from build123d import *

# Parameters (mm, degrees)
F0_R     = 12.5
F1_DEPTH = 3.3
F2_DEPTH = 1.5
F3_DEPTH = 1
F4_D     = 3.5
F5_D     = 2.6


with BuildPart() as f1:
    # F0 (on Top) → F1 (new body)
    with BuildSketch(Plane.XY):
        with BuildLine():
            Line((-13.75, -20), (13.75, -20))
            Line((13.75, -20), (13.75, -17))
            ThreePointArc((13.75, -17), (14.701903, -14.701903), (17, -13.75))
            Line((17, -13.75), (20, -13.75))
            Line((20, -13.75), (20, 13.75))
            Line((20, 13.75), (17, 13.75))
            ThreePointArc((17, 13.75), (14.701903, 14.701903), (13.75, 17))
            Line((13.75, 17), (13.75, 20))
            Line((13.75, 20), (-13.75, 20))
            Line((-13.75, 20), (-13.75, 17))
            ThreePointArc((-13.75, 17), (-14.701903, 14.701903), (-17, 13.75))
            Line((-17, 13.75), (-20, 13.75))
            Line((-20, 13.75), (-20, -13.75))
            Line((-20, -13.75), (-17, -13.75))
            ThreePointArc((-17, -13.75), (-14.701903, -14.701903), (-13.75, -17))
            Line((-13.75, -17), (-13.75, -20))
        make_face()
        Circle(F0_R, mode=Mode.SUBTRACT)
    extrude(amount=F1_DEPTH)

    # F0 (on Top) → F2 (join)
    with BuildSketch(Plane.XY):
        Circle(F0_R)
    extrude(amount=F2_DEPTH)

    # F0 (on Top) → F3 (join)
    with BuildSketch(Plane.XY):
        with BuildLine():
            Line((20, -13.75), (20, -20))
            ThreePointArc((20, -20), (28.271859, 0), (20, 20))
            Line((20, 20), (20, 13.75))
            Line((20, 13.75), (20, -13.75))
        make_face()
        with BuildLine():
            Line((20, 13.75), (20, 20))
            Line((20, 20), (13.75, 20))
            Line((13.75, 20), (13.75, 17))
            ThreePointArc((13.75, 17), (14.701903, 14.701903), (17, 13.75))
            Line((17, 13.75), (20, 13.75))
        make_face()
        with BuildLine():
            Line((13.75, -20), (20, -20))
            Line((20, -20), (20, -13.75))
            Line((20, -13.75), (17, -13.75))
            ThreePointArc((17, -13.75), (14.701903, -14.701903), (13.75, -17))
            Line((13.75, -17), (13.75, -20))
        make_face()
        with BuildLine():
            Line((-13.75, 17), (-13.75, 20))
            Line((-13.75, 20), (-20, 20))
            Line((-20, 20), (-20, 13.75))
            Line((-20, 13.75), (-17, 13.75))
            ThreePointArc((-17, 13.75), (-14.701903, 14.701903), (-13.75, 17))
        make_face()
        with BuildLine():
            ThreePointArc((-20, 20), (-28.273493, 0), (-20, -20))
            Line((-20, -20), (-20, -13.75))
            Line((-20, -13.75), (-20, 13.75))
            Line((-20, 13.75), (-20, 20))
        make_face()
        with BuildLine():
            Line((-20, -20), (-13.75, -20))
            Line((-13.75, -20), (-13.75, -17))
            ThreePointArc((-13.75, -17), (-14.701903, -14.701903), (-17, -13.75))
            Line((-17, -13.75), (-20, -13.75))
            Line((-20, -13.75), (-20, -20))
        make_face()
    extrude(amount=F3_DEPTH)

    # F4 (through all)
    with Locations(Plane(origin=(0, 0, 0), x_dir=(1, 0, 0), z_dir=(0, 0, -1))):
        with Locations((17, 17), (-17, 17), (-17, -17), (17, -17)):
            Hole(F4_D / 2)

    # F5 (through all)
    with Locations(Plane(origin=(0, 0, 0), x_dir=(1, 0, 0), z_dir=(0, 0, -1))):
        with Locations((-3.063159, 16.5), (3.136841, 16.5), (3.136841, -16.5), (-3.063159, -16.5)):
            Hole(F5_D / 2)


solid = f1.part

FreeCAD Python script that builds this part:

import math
import FreeCAD as App
import Part
import Sketcher

doc = App.newDocument("Part")
body = doc.addObject("PartDesign::Body", "Body")

# Sketch on XY plane
sketch1 = body.newObject("Sketcher::SketchObject", "Sketch")
sketch1.AttachmentSupport = (doc.getObject("XY_Plane"), [""])
sketch1.MapMode = "FlatFace"
sketch1.addGeometry(Part.LineSegment(App.Vector(-13.75, -20, 0), App.Vector(13.75, -20, 0)), False)
sketch1.addGeometry(Part.LineSegment(App.Vector(13.75, -20, 0), App.Vector(13.75, -17, 0)), False)
sketch1.addGeometry(Part.ArcOfCircle(Part.Circle(App.Vector(17, -17, 0), App.Vector(0, 0, 1), 3.25), math.radians(90.000002), math.radians(179.999998)), False)
sketch1.addGeometry(Part.LineSegment(App.Vector(17, -13.75, 0), App.Vector(20, -13.75, 0)), False)
sketch1.addGeometry(Part.LineSegment(App.Vector(20, -13.75, 0), App.Vector(20, 13.75, 0)), False)
sketch1.addGeometry(Part.LineSegment(App.Vector(20, 13.75, 0), App.Vector(17, 13.75, 0)), False)
sketch1.addGeometry(Part.ArcOfCircle(Part.Circle(App.Vector(17, 17, 0), App.Vector(0, 0, 1), 3.25), math.radians(-179.999998), math.radians(-90.000002)), False)
sketch1.addGeometry(Part.LineSegment(App.Vector(13.75, 17, 0), App.Vector(13.75, 20, 0)), False)
sketch1.addGeometry(Part.LineSegment(App.Vector(13.75, 20, 0), App.Vector(-13.75, 20, 0)), False)
sketch1.addGeometry(Part.LineSegment(App.Vector(-13.75, 20, 0), App.Vector(-13.75, 17, 0)), False)
sketch1.addGeometry(Part.ArcOfCircle(Part.Circle(App.Vector(-17, 17, 0), App.Vector(0, 0, 1), 3.25), math.radians(-89.999998), math.radians(-0.000002)), False)
sketch1.addGeometry(Part.LineSegment(App.Vector(-17, 13.75, 0), App.Vector(-20, 13.75, 0)), False)
sketch1.addGeometry(Part.LineSegment(App.Vector(-20, 13.75, 0), App.Vector(-20, -13.75, 0)), False)
sketch1.addGeometry(Part.LineSegment(App.Vector(-20, -13.75, 0), App.Vector(-17, -13.75, 0)), False)
sketch1.addGeometry(Part.ArcOfCircle(Part.Circle(App.Vector(-17, -17, 0), App.Vector(0, 0, 1), 3.25), math.radians(0.000002), math.radians(89.999998)), False)
sketch1.addGeometry(Part.LineSegment(App.Vector(-13.75, -17, 0), App.Vector(-13.75, -20, 0)), False)
sketch1.addGeometry(Part.Circle(App.Vector(0, 0, 0), App.Vector(0, 0, 1), 12.5), False)
sketch1.addConstraint(Sketcher.Constraint("Coincident", 0, 2, 1, 1))
sketch1.addConstraint(Sketcher.Constraint("Tangent", 1, 2, 2, 2))
sketch1.addConstraint(Sketcher.Constraint("Tangent", 2, 1, 3, 1))
sketch1.addConstraint(Sketcher.Constraint("Coincident", 3, 2, 4, 1))
sketch1.addConstraint(Sketcher.Constraint("Coincident", 4, 2, 5, 1))
sketch1.addConstraint(Sketcher.Constraint("Tangent", 5, 2, 6, 2))
sketch1.addConstraint(Sketcher.Constraint("Tangent", 6, 1, 7, 1))
sketch1.addConstraint(Sketcher.Constraint("Coincident", 7, 2, 8, 1))
sketch1.addConstraint(Sketcher.Constraint("Coincident", 8, 2, 9, 1))
sketch1.addConstraint(Sketcher.Constraint("Tangent", 9, 2, 10, 2))
sketch1.addConstraint(Sketcher.Constraint("Tangent", 10, 1, 11, 1))
sketch1.addConstraint(Sketcher.Constraint("Coincident", 11, 2, 12, 1))
sketch1.addConstraint(Sketcher.Constraint("Coincident", 12, 2, 13, 1))
sketch1.addConstraint(Sketcher.Constraint("Tangent", 13, 2, 14, 2))
sketch1.addConstraint(Sketcher.Constraint("Tangent", 14, 1, 15, 1))
sketch1.addConstraint(Sketcher.Constraint("Coincident", 15, 2, 0, 1))
sketch1.addConstraint(Sketcher.Constraint("Horizontal", 0))
sketch1.addConstraint(Sketcher.Constraint("Vertical", 1))
sketch1.addConstraint(Sketcher.Constraint("Horizontal", 3))
sketch1.addConstraint(Sketcher.Constraint("Vertical", 4))
sketch1.addConstraint(Sketcher.Constraint("Horizontal", 5))
sketch1.addConstraint(Sketcher.Constraint("Vertical", 7))
sketch1.addConstraint(Sketcher.Constraint("Horizontal", 8))
sketch1.addConstraint(Sketcher.Constraint("Vertical", 9))
sketch1.addConstraint(Sketcher.Constraint("Horizontal", 11))
sketch1.addConstraint(Sketcher.Constraint("Vertical", 12))
sketch1.addConstraint(Sketcher.Constraint("Horizontal", 13))
sketch1.addConstraint(Sketcher.Constraint("Vertical", 15))
sketch1.addConstraint(Sketcher.Constraint("Coincident", 16, 3, -1, 1))
sketch1.addConstraint(Sketcher.Constraint("Equal", 2, 6))
sketch1.addConstraint(Sketcher.Constraint("Equal", 6, 10))
sketch1.addConstraint(Sketcher.Constraint("Equal", 10, 14))
sketch1.addConstraint(Sketcher.Constraint("Symmetric", 2, 3, 10, 3, -1, 1))
sketch1.addConstraint(Sketcher.Constraint("Symmetric", 6, 3, 14, 3, -1, 1))
sketch1.addConstraint(Sketcher.Constraint("Symmetric", 6, 3, 10, 3, -2))
sketch1.addConstraint(Sketcher.Constraint("Equal", 5, 11))
sketch1.addConstraint(Sketcher.Constraint("Equal", 13, 1))
sketch1.addConstraint(Sketcher.Constraint("Equal", 8, 4))
sketch1.addConstraint(Sketcher.Constraint("Equal", 1, 7))
sketch1.addConstraint(Sketcher.Constraint("Diameter", 16, 25.0))
sketch1.addConstraint(Sketcher.Constraint("DistanceX", 3, 1, 3, 2, 3.0))
sketch1.addConstraint(Sketcher.Constraint("Radius", 2, 3.25))
sketch1.addConstraint(Sketcher.Constraint("DistanceX", 0, 1, 0, 2, 27.5))
pad1 = body.newObject("PartDesign::Pad", "Pad")
pad1.Profile = sketch1
pad1.Length = 3.3

# Sketch on XY plane
sketch2 = body.newObject("Sketcher::SketchObject", "Sketch001")
sketch2.AttachmentSupport = (doc.getObject("XY_Plane"), [""])
sketch2.MapMode = "FlatFace"
sketch2.addGeometry(Part.Circle(App.Vector(0, 0, 0), App.Vector(0, 0, 1), 12.5), False)
sketch2.addConstraint(Sketcher.Constraint("Coincident", 0, 3, -1, 1))
sketch2.addConstraint(Sketcher.Constraint("Diameter", 0, 25.0))
pad2 = body.newObject("PartDesign::Pad", "Pad001")
pad2.Profile = sketch2
pad2.Length = 1.5

# Sketch on XY plane
sketch3 = body.newObject("Sketcher::SketchObject", "Sketch002")
sketch3.AttachmentSupport = (doc.getObject("XY_Plane"), [""])
sketch3.MapMode = "FlatFace"
sketch3.addGeometry(Part.ArcOfCircle(Part.Circle(App.Vector(-0.042432, 0, 0), App.Vector(0, 0, 1), 28.314291), math.radians(-44.939285), math.radians(44.939285)), False)
sketch3.addGeometry(Part.LineSegment(App.Vector(20, 20, 0), App.Vector(13.75, 20, 0)), False)
sketch3.addGeometry(Part.LineSegment(App.Vector(13.75, 20, 0), App.Vector(13.75, 17, 0)), False)
sketch3.addGeometry(Part.ArcOfCircle(Part.Circle(App.Vector(17, 17, 0), App.Vector(0, 0, 1), 3.25), math.radians(-179.999998), math.radians(-90.000002)), False)
sketch3.addGeometry(Part.LineSegment(App.Vector(17, 13.75, 0), App.Vector(20, 13.75, 0)), False)
sketch3.addGeometry(Part.LineSegment(App.Vector(20, 13.75, 0), App.Vector(20, -13.75, 0)), False)
sketch3.addGeometry(Part.LineSegment(App.Vector(20, -13.75, 0), App.Vector(17, -13.75, 0)), False)
sketch3.addGeometry(Part.ArcOfCircle(Part.Circle(App.Vector(17, -17, 0), App.Vector(0, 0, 1), 3.25), math.radians(90.000002), math.radians(179.999998)), False)
sketch3.addGeometry(Part.LineSegment(App.Vector(13.75, -17, 0), App.Vector(13.75, -20, 0)), False)
sketch3.addGeometry(Part.LineSegment(App.Vector(13.75, -20, 0), App.Vector(20, -20, 0)), False)
sketch3.addGeometry(Part.LineSegment(App.Vector(-13.75, 17, 0), App.Vector(-13.75, 20, 0)), False)
sketch3.addGeometry(Part.LineSegment(App.Vector(-13.75, 20, 0), App.Vector(-20, 20, 0)), False)
sketch3.addGeometry(Part.ArcOfCircle(Part.Circle(App.Vector(0.03684, 0, 0), App.Vector(0, 0, 1), 28.310333), math.radians(135.052721), math.radians(224.947279)), False)
sketch3.addGeometry(Part.LineSegment(App.Vector(-20, -20, 0), App.Vector(-13.75, -20, 0)), False)
sketch3.addGeometry(Part.LineSegment(App.Vector(-13.75, -20, 0), App.Vector(-13.75, -17, 0)), False)
sketch3.addGeometry(Part.ArcOfCircle(Part.Circle(App.Vector(-17, -17, 0), App.Vector(0, 0, 1), 3.25), math.radians(0.000002), math.radians(89.999998)), False)
sketch3.addGeometry(Part.LineSegment(App.Vector(-17, -13.75, 0), App.Vector(-20, -13.75, 0)), False)
sketch3.addGeometry(Part.LineSegment(App.Vector(-20, -13.75, 0), App.Vector(-20, 13.75, 0)), False)
sketch3.addGeometry(Part.LineSegment(App.Vector(-20, 13.75, 0), App.Vector(-17, 13.75, 0)), False)
sketch3.addGeometry(Part.ArcOfCircle(Part.Circle(App.Vector(-17, 17, 0), App.Vector(0, 0, 1), 3.25), math.radians(-89.999998), math.radians(-0.000002)), False)
sketch3.addConstraint(Sketcher.Constraint("Coincident", 0, 2, 1, 1))
sketch3.addConstraint(Sketcher.Constraint("Coincident", 1, 2, 2, 1))
sketch3.addConstraint(Sketcher.Constraint("Tangent", 2, 2, 3, 1))
sketch3.addConstraint(Sketcher.Constraint("Tangent", 3, 2, 4, 1))
sketch3.addConstraint(Sketcher.Constraint("Coincident", 4, 2, 5, 1))
sketch3.addConstraint(Sketcher.Constraint("Coincident", 5, 2, 6, 1))
sketch3.addConstraint(Sketcher.Constraint("Tangent", 6, 2, 7, 1))
sketch3.addConstraint(Sketcher.Constraint("Tangent", 7, 2, 8, 1))
sketch3.addConstraint(Sketcher.Constraint("Coincident", 8, 2, 9, 1))
sketch3.addConstraint(Sketcher.Constraint("Coincident", 9, 2, 0, 1))
sketch3.addConstraint(Sketcher.Constraint("Coincident", 10, 2, 11, 1))
sketch3.addConstraint(Sketcher.Constraint("Coincident", 11, 2, 12, 1))
sketch3.addConstraint(Sketcher.Constraint("Coincident", 12, 2, 13, 1))
sketch3.addConstraint(Sketcher.Constraint("Coincident", 13, 2, 14, 1))
sketch3.addConstraint(Sketcher.Constraint("Tangent", 14, 2, 15, 1))
sketch3.addConstraint(Sketcher.Constraint("Tangent", 15, 2, 16, 1))
sketch3.addConstraint(Sketcher.Constraint("Coincident", 16, 2, 17, 1))
sketch3.addConstraint(Sketcher.Constraint("Coincident", 17, 2, 18, 1))
sketch3.addConstraint(Sketcher.Constraint("Tangent", 18, 2, 19, 1))
sketch3.addConstraint(Sketcher.Constraint("Tangent", 19, 2, 10, 1))
sketch3.addConstraint(Sketcher.Constraint("Horizontal", 1))
sketch3.addConstraint(Sketcher.Constraint("Vertical", 2))
sketch3.addConstraint(Sketcher.Constraint("Horizontal", 4))
sketch3.addConstraint(Sketcher.Constraint("Vertical", 5))
sketch3.addConstraint(Sketcher.Constraint("Horizontal", 6))
sketch3.addConstraint(Sketcher.Constraint("Vertical", 8))
sketch3.addConstraint(Sketcher.Constraint("Horizontal", 9))
sketch3.addConstraint(Sketcher.Constraint("Vertical", 10))
sketch3.addConstraint(Sketcher.Constraint("Horizontal", 11))
sketch3.addConstraint(Sketcher.Constraint("Horizontal", 13))
sketch3.addConstraint(Sketcher.Constraint("Vertical", 14))
sketch3.addConstraint(Sketcher.Constraint("Horizontal", 16))
sketch3.addConstraint(Sketcher.Constraint("Vertical", 17))
sketch3.addConstraint(Sketcher.Constraint("Horizontal", 18))
sketch3.addConstraint(Sketcher.Constraint("Equal", 3, 7))
sketch3.addConstraint(Sketcher.Constraint("Equal", 7, 15))
sketch3.addConstraint(Sketcher.Constraint("Equal", 15, 19))
sketch3.addConstraint(Sketcher.Constraint("Symmetric", 3, 3, 15, 3, -1, 1))
sketch3.addConstraint(Sketcher.Constraint("Symmetric", 7, 3, 19, 3, -1, 1))
sketch3.addConstraint(Sketcher.Constraint("Symmetric", 9, 2, 11, 2, -1, 1))
sketch3.addConstraint(Sketcher.Constraint("Symmetric", 0, 2, 12, 2, -1, 1))
sketch3.addConstraint(Sketcher.Constraint("Symmetric", 7, 3, 15, 3, -2))
sketch3.addConstraint(Sketcher.Constraint("Symmetric", 0, 2, 11, 2, -2))
sketch3.addConstraint(Sketcher.Constraint("Vertical", 0, 2, 4, 2))
sketch3.addConstraint(Sketcher.Constraint("Vertical", 12, 2, 16, 2))
sketch3.addConstraint(Sketcher.Constraint("Equal", 18, 2))
sketch3.addConstraint(Sketcher.Constraint("DistanceX", 4, 1, 4, 2, 3.0))
sketch3.addConstraint(Sketcher.Constraint("Radius", 3, 3.25))
sketch3.addConstraint(Sketcher.Constraint("DistanceY", 5, 2, 5, 1, 27.5))
sketch3.addConstraint(Sketcher.Constraint("DistanceX", -1, 1, 3, 3, 17.0))
sketch3.addConstraint(Sketcher.Constraint("Radius", 0, 28.314291))
sketch3.addConstraint(Sketcher.Constraint("Radius", 12, 28.310333))
pad3 = body.newObject("PartDesign::Pad", "Pad002")
pad3.Profile = sketch3
pad3.Length = 1

# Sketch on XY plane
sketch4 = body.newObject("Sketcher::SketchObject", "Sketch003")
sketch4.AttachmentSupport = (doc.getObject("XY_Plane"), [""])
sketch4.MapMode = "FlatFace"
sketch4.addGeometry(Part.Circle(App.Vector(17, -17, 0), App.Vector(0, 0, 1), 1.75), False)
sketch4.addGeometry(Part.Circle(App.Vector(-17, -17, 0), App.Vector(0, 0, 1), 1.75), False)
sketch4.addGeometry(Part.Circle(App.Vector(-17, 17, 0), App.Vector(0, 0, 1), 1.75), False)
sketch4.addGeometry(Part.Circle(App.Vector(17, 17, 0), App.Vector(0, 0, 1), 1.75), False)
sketch4.addConstraint(Sketcher.Constraint("Equal", 0, 1))
sketch4.addConstraint(Sketcher.Constraint("Equal", 1, 2))
sketch4.addConstraint(Sketcher.Constraint("Equal", 2, 3))
sketch4.addConstraint(Sketcher.Constraint("Symmetric", 0, 3, 2, 3, -1, 1))
sketch4.addConstraint(Sketcher.Constraint("Symmetric", 1, 3, 3, 3, -1, 1))
sketch4.addConstraint(Sketcher.Constraint("Symmetric", 0, 3, 1, 3, -2))
sketch4.addConstraint(Sketcher.Constraint("Diameter", 0, 3.5))
sketch4.addConstraint(Sketcher.Constraint("DistanceX", -1, 1, 0, 3, 17.0))
sketch4.addConstraint(Sketcher.Constraint("DistanceY", 0, 3, -1, 1, 17.0))
doc.recompute()
hole = body.newObject("PartDesign::Hole", "Hole")
hole.Profile = sketch4
hole.ThreadType = "None"
hole.Diameter = 3.5
hole.DepthType = "ThroughAll"
hole.Reversed = True

# Sketch on XY plane
sketch5 = body.newObject("Sketcher::SketchObject", "Sketch004")
sketch5.AttachmentSupport = (doc.getObject("XY_Plane"), [""])
sketch5.MapMode = "FlatFace"
sketch5.addGeometry(Part.Circle(App.Vector(-3.063159, -16.5, 0), App.Vector(0, 0, 1), 1.3), False)
sketch5.addGeometry(Part.Circle(App.Vector(3.136841, -16.5, 0), App.Vector(0, 0, 1), 1.3), False)
sketch5.addGeometry(Part.Circle(App.Vector(3.136841, 16.5, 0), App.Vector(0, 0, 1), 1.3), False)
sketch5.addGeometry(Part.Circle(App.Vector(-3.063159, 16.5, 0), App.Vector(0, 0, 1), 1.3), False)
sketch5.addConstraint(Sketcher.Constraint("Equal", 0, 1))
sketch5.addConstraint(Sketcher.Constraint("Equal", 1, 2))
sketch5.addConstraint(Sketcher.Constraint("Equal", 2, 3))
sketch5.addConstraint(Sketcher.Constraint("Symmetric", 1, 3, 2, 3, -1))
sketch5.addConstraint(Sketcher.Constraint("Symmetric", 0, 3, 3, 3, -1))
sketch5.addConstraint(Sketcher.Constraint("Horizontal", 0, 3, 1, 3))
sketch5.addConstraint(Sketcher.Constraint("Diameter", 0, 2.6))
sketch5.addConstraint(Sketcher.Constraint("DistanceY", 1, 3, 2, 3, 33.0))
sketch5.addConstraint(Sketcher.Constraint("DistanceX", 0, 3, 1, 3, 6.2))
sketch5.addConstraint(Sketcher.Constraint("DistanceX", 0, 3, -1, 1, 3.063159))
doc.recompute()
hole2 = body.newObject("PartDesign::Hole", "Hole001")
hole2.Profile = sketch5
hole2.ThreadType = "None"
hole2.Diameter = 2.6
hole2.DepthType = "ThroughAll"
hole2.Reversed = True

doc.recompute()
